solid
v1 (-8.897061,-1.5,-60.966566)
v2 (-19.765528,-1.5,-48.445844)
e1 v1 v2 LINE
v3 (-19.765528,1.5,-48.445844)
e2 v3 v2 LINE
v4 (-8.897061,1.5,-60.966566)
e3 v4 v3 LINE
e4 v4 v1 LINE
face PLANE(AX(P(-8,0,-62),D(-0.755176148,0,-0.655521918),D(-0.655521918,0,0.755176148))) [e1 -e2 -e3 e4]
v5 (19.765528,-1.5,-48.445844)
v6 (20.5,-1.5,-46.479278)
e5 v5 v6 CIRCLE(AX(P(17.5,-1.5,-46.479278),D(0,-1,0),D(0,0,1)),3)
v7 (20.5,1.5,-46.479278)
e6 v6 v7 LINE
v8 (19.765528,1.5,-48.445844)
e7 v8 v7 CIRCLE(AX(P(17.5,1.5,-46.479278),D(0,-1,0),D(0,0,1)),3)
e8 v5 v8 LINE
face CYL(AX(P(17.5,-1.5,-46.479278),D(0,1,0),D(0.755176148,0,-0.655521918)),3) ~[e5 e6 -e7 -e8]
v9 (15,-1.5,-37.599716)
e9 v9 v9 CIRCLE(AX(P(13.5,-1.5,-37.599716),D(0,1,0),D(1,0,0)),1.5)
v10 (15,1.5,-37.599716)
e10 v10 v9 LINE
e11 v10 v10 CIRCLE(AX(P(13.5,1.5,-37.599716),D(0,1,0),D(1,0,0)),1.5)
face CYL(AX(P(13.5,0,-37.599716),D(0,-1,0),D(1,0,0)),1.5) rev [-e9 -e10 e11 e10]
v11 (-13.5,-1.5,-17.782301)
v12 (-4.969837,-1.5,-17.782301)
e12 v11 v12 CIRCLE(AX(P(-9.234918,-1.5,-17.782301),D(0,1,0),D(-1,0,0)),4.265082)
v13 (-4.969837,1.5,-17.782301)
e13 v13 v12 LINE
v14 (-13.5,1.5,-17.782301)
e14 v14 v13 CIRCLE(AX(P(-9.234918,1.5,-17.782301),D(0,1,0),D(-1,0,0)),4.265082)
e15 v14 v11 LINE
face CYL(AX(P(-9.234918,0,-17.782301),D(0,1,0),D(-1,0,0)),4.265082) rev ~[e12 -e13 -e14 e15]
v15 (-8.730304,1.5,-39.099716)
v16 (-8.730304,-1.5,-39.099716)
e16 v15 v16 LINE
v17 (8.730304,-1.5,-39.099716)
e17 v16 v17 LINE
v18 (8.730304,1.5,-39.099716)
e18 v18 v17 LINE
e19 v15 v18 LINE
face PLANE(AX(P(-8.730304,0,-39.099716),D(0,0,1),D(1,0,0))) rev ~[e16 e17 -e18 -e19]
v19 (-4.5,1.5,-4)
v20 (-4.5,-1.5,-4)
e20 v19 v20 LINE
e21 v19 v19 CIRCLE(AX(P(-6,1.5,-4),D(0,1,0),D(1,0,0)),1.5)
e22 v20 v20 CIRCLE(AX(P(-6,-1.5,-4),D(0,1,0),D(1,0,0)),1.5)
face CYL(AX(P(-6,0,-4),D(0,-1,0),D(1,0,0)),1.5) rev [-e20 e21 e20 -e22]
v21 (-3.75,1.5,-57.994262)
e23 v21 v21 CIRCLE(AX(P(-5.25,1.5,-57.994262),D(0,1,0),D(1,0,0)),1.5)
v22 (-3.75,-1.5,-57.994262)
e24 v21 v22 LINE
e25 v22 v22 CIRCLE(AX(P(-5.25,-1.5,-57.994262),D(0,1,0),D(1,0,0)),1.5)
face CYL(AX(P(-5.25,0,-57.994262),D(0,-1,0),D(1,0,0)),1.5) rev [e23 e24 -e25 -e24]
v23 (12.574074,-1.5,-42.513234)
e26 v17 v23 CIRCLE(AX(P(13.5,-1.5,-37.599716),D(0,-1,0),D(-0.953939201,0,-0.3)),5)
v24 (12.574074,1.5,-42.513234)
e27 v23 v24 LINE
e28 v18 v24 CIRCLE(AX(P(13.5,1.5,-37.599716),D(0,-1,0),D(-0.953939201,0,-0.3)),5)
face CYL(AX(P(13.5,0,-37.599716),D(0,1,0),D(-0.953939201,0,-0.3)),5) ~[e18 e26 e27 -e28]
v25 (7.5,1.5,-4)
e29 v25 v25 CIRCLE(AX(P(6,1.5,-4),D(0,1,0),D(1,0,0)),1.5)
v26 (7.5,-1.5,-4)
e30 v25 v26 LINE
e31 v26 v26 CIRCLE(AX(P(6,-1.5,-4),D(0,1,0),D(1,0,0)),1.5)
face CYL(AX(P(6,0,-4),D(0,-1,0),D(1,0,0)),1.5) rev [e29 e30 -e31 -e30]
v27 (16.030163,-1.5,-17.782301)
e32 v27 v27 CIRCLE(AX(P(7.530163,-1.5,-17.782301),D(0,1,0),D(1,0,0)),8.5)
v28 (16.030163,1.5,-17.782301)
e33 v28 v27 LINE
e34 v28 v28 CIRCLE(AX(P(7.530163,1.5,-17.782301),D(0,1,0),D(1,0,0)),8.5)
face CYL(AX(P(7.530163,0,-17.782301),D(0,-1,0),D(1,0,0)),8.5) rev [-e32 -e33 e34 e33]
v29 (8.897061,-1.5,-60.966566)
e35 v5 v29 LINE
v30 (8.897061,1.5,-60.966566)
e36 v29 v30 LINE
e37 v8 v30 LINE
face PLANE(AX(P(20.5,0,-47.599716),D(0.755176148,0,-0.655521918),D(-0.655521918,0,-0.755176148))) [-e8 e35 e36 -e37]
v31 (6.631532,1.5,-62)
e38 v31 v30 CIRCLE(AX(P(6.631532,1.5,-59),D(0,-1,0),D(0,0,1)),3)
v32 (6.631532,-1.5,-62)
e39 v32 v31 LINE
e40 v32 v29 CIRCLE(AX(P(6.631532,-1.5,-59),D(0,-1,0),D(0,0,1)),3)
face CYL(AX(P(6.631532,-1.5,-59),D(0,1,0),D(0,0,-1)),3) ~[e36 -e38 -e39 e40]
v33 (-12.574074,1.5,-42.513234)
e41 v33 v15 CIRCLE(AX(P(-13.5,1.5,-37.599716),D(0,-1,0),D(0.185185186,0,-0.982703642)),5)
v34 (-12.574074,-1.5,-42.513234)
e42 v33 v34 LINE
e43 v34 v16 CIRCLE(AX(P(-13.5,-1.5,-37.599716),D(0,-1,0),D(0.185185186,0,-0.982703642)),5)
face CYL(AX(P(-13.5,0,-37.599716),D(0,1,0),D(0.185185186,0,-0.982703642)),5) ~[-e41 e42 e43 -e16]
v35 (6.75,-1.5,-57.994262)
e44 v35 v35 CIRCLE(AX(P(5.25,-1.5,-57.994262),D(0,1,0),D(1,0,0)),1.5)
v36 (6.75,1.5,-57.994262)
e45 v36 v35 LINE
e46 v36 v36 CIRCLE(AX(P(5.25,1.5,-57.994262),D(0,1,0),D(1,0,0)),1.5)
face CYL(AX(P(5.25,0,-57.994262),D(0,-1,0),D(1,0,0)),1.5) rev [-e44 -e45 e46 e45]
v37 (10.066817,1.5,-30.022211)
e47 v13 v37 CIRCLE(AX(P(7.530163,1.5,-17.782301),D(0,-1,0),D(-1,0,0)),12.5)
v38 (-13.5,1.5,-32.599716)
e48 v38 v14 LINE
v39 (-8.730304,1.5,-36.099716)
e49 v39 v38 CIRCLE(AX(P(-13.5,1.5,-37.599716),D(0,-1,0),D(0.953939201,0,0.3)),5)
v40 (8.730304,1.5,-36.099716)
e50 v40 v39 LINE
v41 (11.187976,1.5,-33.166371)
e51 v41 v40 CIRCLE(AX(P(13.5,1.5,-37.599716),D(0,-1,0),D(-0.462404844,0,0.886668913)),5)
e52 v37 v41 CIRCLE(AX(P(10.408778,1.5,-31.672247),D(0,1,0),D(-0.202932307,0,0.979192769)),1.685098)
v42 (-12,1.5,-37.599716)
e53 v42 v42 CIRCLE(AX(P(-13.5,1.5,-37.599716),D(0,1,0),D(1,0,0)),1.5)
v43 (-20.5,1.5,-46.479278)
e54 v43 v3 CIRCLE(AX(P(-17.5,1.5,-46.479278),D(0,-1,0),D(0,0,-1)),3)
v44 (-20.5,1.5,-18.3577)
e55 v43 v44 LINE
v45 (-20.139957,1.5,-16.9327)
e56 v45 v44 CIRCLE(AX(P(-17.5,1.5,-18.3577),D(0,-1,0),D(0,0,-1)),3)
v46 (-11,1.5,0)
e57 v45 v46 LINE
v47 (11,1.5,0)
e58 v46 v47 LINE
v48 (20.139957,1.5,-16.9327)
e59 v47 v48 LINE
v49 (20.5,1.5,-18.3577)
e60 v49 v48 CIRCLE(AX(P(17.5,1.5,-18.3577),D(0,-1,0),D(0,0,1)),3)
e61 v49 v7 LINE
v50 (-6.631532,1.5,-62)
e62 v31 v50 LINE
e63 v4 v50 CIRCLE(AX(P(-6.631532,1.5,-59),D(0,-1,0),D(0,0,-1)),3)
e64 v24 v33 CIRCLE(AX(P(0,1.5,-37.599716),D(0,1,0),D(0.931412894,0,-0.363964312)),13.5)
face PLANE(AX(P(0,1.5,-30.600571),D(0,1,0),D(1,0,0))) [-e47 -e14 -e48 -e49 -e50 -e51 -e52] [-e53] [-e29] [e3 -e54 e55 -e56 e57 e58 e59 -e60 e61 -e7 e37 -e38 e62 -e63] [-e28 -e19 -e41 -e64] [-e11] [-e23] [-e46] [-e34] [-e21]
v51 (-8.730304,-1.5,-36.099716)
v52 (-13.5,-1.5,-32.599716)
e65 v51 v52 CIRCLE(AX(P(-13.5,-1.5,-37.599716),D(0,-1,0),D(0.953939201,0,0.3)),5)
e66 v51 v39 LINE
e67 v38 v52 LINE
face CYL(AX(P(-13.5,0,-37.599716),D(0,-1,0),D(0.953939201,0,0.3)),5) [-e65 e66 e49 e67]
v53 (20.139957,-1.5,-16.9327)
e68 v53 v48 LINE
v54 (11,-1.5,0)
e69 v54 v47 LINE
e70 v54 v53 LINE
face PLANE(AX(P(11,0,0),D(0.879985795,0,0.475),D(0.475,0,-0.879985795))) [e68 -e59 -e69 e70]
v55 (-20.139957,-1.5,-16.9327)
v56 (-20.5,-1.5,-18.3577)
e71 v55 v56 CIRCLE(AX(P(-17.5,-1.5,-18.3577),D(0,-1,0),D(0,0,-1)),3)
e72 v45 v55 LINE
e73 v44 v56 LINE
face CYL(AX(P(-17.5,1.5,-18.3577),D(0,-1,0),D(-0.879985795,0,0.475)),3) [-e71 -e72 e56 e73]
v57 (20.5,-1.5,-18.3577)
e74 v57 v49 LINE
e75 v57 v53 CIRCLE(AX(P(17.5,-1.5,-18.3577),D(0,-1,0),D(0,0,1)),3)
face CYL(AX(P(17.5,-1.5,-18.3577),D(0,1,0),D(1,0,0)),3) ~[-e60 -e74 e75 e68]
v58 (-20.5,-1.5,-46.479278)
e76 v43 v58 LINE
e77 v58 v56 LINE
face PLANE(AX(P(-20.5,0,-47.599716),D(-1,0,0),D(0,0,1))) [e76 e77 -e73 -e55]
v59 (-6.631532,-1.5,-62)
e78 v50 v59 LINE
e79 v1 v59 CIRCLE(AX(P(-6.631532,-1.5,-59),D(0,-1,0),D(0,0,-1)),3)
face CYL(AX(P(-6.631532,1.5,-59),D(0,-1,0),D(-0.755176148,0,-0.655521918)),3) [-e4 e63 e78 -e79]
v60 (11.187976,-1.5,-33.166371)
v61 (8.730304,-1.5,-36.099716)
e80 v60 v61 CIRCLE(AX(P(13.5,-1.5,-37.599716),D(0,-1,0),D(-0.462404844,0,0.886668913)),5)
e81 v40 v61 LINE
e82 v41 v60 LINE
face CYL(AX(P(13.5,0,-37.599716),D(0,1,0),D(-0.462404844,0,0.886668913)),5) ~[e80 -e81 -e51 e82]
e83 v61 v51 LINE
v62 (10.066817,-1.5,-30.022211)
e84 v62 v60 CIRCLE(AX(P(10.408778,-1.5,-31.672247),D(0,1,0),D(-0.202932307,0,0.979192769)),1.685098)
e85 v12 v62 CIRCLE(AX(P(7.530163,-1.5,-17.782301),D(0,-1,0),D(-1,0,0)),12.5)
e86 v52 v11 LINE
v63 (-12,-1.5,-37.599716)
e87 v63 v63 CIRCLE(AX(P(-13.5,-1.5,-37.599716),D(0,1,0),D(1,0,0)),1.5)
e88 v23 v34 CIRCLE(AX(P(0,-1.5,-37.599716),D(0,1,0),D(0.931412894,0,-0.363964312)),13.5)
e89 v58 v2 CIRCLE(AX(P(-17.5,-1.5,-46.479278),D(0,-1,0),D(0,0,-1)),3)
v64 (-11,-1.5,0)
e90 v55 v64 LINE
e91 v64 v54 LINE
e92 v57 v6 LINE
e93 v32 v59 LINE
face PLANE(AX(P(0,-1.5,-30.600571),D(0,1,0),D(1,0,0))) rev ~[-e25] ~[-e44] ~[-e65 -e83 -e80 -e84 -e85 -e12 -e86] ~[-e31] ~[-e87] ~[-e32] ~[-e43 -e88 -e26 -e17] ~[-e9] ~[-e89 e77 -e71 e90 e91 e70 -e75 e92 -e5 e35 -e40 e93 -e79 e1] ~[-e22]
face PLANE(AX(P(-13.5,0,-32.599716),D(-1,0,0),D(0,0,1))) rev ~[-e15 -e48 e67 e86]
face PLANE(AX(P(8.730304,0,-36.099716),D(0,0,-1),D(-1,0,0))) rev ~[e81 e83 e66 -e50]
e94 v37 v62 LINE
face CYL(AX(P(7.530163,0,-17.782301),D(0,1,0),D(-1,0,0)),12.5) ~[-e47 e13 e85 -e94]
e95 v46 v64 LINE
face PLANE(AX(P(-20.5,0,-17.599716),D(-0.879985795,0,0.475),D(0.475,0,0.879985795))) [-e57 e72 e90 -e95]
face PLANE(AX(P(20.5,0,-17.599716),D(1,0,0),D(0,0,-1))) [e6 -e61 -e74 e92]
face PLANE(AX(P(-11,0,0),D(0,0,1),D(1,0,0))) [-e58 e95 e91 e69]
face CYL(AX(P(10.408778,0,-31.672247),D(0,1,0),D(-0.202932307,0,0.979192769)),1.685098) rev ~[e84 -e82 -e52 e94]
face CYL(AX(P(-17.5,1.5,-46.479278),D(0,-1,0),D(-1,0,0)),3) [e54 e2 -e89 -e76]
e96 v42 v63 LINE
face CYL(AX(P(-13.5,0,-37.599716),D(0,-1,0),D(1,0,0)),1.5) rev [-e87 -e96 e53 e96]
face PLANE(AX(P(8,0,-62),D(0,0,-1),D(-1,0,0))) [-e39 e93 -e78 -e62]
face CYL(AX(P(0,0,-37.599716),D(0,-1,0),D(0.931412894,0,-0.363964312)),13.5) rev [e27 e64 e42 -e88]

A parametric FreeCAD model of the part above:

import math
import FreeCAD as App
import Part
import Sketcher
Q = App.Units.Quantity


def edges_at(feature, points):
    """Names of the edges that pass closest to the given points."""
    edges = feature.Shape.Edges
    near = lambda p: min(range(len(edges)), key=lambda i: edges[i].distToShape(Part.Vertex(*p))[0])
    return sorted({f"Edge{near(p) + 1}" for p in points})


def add_polygon(sketch, points):
    """Adds a closed chain of lines whose ends are joined by coincident constraints."""
    first, n = sketch.GeometryCount, len(points)
    for a, b in zip(points, points[1:] + points[:1]):
        sketch.addGeometry(Part.LineSegment(App.Vector(*a, 0), App.Vector(*b, 0)), False)
    for i in range(n):
        sketch.addConstraint(Sketcher.Constraint("Coincident", first + i, 2, first + (i + 1) % n, 1))

doc = App.newDocument("Part")
body = doc.addObject("PartDesign::Body", "Body")

# Sketch on XZ plane
sketch1 = doc.addObject("Sketcher::SketchObject", "Sketch")
body.addObject(sketch1)
sketch1.AttachmentSupport = (doc.XZ_Plane, [""])
sketch1.MapMode = "FlatFace"
add_polygon(sketch1, [(-11, 0), (11, 0), (20.5, -17.6), (20.5, -47.6), (8, -62), (-8, -62), (-20.5, -47.6), (-20.5, -17.6)])  # lines 0-7
sketch1.addGeometry(Part.Circle(App.Vector(-6, -4, 0), App.Vector(0, 0, 1), 1.5), False)  # 8
sketch1.addGeometry(Part.LineSegment(App.Vector(-13.5, -17.8, 0), App.Vector(-13.5, -32.6, 0)), False)  # 9
sketch1.addGeometry(Part.ArcOfCircle(Part.Circle(App.Vector(-13.5, -37.6, 0), App.Vector(0, 0, 1), 5), math.radians(17), math.radians(90)), False)  # 10
sketch1.addGeometry(Part.LineSegment(App.Vector(-8.7, -36.1, 0), App.Vector(8.7, -36.1, 0)), False)  # 11
sketch1.addGeometry(Part.ArcOfCircle(Part.Circle(App.Vector(13.5, -37.6, 0), App.Vector(0, 0, 1), 5), math.radians(118), math.radians(163)), False)  # 12
sketch1.addGeometry(Part.ArcOfCircle(Part.Circle(App.Vector(10.4, -31.7, 0), App.Vector(0, 0, 1), 1.7), math.radians(-62), math.radians(102)), False)  # 13
sketch1.addGeometry(Part.ArcOfCircle(Part.Circle(App.Vector(7.5, -17.8, 0), App.Vector(0, 0, 1), 12.5), math.radians(180), math.radians(282)), False)  # 14
sketch1.addGeometry(Part.ArcOfCircle(Part.Circle(App.Vector(-9.2, -17.8, 0), App.Vector(0, 0, 1), 4.3), math.radians(0), math.radians(180)), False)  # 15
sketch1.addGeometry(Part.Circle(App.Vector(6, -4, 0), App.Vector(0, 0, 1), 1.5), False)  # 16
sketch1.addGeometry(Part.Circle(App.Vector(7.5, -17.8, 0), App.Vector(0, 0, 1), 8.5), False)  # 17
sketch1.addGeometry(Part.Circle(App.Vector(-13.5, -37.6, 0), App.Vector(0, 0, 1), 1.5), False)  # 18
sketch1.addGeometry(Part.LineSegment(App.Vector(8.7, -39.1, 0), App.Vector(-8.7, -39.1, 0)), False)  # 19
sketch1.addGeometry(Part.ArcOfCircle(Part.Circle(App.Vector(-13.5, -37.6, 0), App.Vector(0, 0, 1), 5), math.radians(-79), math.radians(-17)), False)  # 20
sketch1.addGeometry(Part.ArcOfCircle(Part.Circle(App.Vector(0, -37.6, 0), App.Vector(0, 0, 1), 13.5), math.radians(-159), math.radians(-21)), False)  # 21
sketch1.addGeometry(Part.ArcOfCircle(Part.Circle(App.Vector(13.5, -37.6, 0), App.Vector(0, 0, 1), 5), math.radians(-163), math.radians(-101)), False)  # 22
sketch1.addGeometry(Part.Circle(App.Vector(-5.2, -58, 0), App.Vector(0, 0, 1), 1.5), False)  # 23
sketch1.addGeometry(Part.Circle(App.Vector(13.5, -37.6, 0), App.Vector(0, 0, 1), 1.5), False)  # 24
sketch1.addGeometry(Part.Circle(App.Vector(5.2, -58, 0), App.Vector(0, 0, 1), 1.5), False)  # 25
sketch1.addConstraint(Sketcher.Constraint("Coincident", 9, 2, 10, 2))
sketch1.addConstraint(Sketcher.Constraint("Coincident", 10, 1, 11, 1))
sketch1.addConstraint(Sketcher.Constraint("Coincident", 11, 2, 12, 2))
sketch1.addConstraint(Sketcher.Constraint("Tangent", 12, 1, 13, 1))
sketch1.addConstraint(Sketcher.Constraint("Tangent", 13, 2, 14, 2))
sketch1.addConstraint(Sketcher.Constraint("Tangent", 14, 1, 15, 1))
sketch1.addConstraint(Sketcher.Constraint("Tangent", 15, 2, 9, 1))
sketch1.addConstraint(Sketcher.Constraint("Coincident", 19, 2, 20, 2))
sketch1.addConstraint(Sketcher.Constraint("Coincident", 20, 1, 21, 1))
sketch1.addConstraint(Sketcher.Constraint("Coincident", 21, 2, 22, 2))
sketch1.addConstraint(Sketcher.Constraint("Coincident", 22, 1, 19, 1))
sketch1.addConstraint(Sketcher.Constraint("Horizontal", 0))
sketch1.addConstraint(Sketcher.Constraint("Vertical", 2))
sketch1.addConstraint(Sketcher.Constraint("Horizontal", 4))
sketch1.addConstraint(Sketcher.Constraint("Vertical", 6))
sketch1.addConstraint(Sketcher.Constraint("Vertical", 9))
sketch1.addConstraint(Sketcher.Constraint("Horizontal", 11))
sketch1.addConstraint(Sketcher.Constraint("Horizontal", 19))
sketch1.addConstraint(Sketcher.Constraint("Coincident", 17, 3, 14, 3))
sketch1.addConstraint(Sketcher.Constraint("Coincident", 18, 3, 10, 3))
sketch1.addConstraint(Sketcher.Constraint("Coincident", 20, 3, 10, 3))
sketch1.addConstraint(Sketcher.Constraint("Coincident", 22, 3, 12, 3))
sketch1.addConstraint(Sketcher.Constraint("Coincident", 24, 3, 12, 3))
sketch1.addConstraint(Sketcher.Constraint("Equal", 10, 12))
sketch1.addConstraint(Sketcher.Constraint("Equal", 8, 16))
sketch1.addConstraint(Sketcher.Constraint("Equal", 16, 18))
sketch1.addConstraint(Sketcher.Constraint("Equal", 12, 20))
sketch1.addConstraint(Sketcher.Constraint("Equal", 20, 22))
sketch1.addConstraint(Sketcher.Constraint("Equal", 18, 23))
sketch1.addConstraint(Sketcher.Constraint("Equal", 23, 24))
sketch1.addConstraint(Sketcher.Constraint("Equal", 24, 25))
sketch1.addConstraint(Sketcher.Constraint("Symmetric", 0, 2, 7, 2, -1, 1))
sketch1.addConstraint(Sketcher.Constraint("Symmetric", 10, 3, 12, 3, -2))
sketch1.addConstraint(Sketcher.Constraint("Symmetric", 8, 3, 16, 3, -2))
sketch1.addConstraint(Sketcher.Constraint("Symmetric", 23, 3, 25, 3, -2))
sketch1.addConstraint(Sketcher.Constraint("Symmetric", 2, 2, 5, 2, -2))
sketch1.addConstraint(Sketcher.Constraint("PointOnObject", 21, 3, -2))
sketch1.addConstraint(Sketcher.Constraint("Horizontal", 14, 3, 15, 3))
sketch1.addConstraint(Sketcher.Constraint("Horizontal", 20, 3, 21, 3))
sketch1.addConstraint(Sketcher.Constraint("Horizontal", 1, 2, 6, 2))
sketch1.addConstraint(Sketcher.Constraint("Vertical", 20, 3, 9, 2))
sketch1.addConstraint(Sketcher.Constraint("Vertical", 10, 1, 19, 2))
sketch1.addConstraint(Sketcher.Constraint("Equal", 3, 5))
sketch1.addConstraint(Sketcher.Constraint("Diameter", 8, Q("3 mm")))
sketch1.addConstraint(Sketcher.Constraint("Diameter", 17, Q("17 mm")))
sketch1.addConstraint(Sketcher.Constraint("Radius", 10, Q("5 mm")))
sketch1.addConstraint(Sketcher.Constraint("Radius", 14, Q("12.5 mm")))
sketch1.addConstraint(Sketcher.Constraint("Radius", 21, Q("13.5 mm")))
sketch1.addConstraint(Sketcher.Constraint("DistanceX", 0, 1, 0, 2, Q("22 mm")))
sketch1.addConstraint(Sketcher.Constraint("DistanceX", 4, 2, 4, 1, Q("16 mm")))
sketch1.addConstraint(Sketcher.Constraint("DistanceY", 2, 2, 2, 1, Q("30 mm")))
sketch1.addConstraint(Sketcher.Constraint("Distance", 1, Q("20 mm")))
sketch1.addConstraint(Sketcher.Constraint("DistanceX", 8, 3, -1, 1, Q("6 mm")))
sketch1.addConstraint(Sketcher.Constraint("DistanceY", 8, 3, -1, 1, Q("4 mm")))
sketch1.addConstraint(Sketcher.Constraint("DistanceY", 3, 2, -1, 1, Q("62 mm")))
sketch1.addConstraint(Sketcher.Constraint("DistanceX", 10, 3, 12, 3, Q("27 mm")))
sketch1.addConstraint(Sketcher.Constraint("DistanceX", 24, 3, 2, 2, Q("7 mm")))
sketch1.addConstraint(Sketcher.Constraint("DistanceY", 2, 2, 24, 3, Q("10 mm")))
sketch1.addConstraint(Sketcher.Constraint("DistanceY", 19, 2, 10, 1, Q("3 mm")))
sketch1.addConstraint(Sketcher.Constraint("Radius", 13, Q("1.685098 mm")))
sketch1.addConstraint(Sketcher.Constraint("DistanceX", 23, 3, 25, 3, Q("10.5 mm")))
sketch1.addConstraint(Sketcher.Constraint("Radius", 15, Q("4.265082 mm")))
sketch1.addConstraint(Sketcher.Constraint("DistanceY", 14, 3, -1, 1, Q("17.782301 mm")))
sketch1.addConstraint(Sketcher.Constraint("DistanceY", 23, 3, -1, 1, Q("57.994262 mm")))
pad1 = doc.addObject("PartDesign::Pad", "Pad")
body.addObject(pad1)
pad1.Profile = sketch1
pad1.Length = 3
pad1.Midplane = True
doc.recompute()

fillet = doc.addObject("PartDesign::Fillet", "Fillet")
body.addObject(fillet)
fillet.Base = (pad1, edges_at(pad1, [
    (-20.5, 0, -17.6),
    (-20.5, 0, -47.6),
    (-8, 0, -62),
    (8, 0, -62),
    (20.5, 0, -47.6),
    (20.5, 0, -17.6),
]))
fillet.Radius = 3

doc.recompute()
